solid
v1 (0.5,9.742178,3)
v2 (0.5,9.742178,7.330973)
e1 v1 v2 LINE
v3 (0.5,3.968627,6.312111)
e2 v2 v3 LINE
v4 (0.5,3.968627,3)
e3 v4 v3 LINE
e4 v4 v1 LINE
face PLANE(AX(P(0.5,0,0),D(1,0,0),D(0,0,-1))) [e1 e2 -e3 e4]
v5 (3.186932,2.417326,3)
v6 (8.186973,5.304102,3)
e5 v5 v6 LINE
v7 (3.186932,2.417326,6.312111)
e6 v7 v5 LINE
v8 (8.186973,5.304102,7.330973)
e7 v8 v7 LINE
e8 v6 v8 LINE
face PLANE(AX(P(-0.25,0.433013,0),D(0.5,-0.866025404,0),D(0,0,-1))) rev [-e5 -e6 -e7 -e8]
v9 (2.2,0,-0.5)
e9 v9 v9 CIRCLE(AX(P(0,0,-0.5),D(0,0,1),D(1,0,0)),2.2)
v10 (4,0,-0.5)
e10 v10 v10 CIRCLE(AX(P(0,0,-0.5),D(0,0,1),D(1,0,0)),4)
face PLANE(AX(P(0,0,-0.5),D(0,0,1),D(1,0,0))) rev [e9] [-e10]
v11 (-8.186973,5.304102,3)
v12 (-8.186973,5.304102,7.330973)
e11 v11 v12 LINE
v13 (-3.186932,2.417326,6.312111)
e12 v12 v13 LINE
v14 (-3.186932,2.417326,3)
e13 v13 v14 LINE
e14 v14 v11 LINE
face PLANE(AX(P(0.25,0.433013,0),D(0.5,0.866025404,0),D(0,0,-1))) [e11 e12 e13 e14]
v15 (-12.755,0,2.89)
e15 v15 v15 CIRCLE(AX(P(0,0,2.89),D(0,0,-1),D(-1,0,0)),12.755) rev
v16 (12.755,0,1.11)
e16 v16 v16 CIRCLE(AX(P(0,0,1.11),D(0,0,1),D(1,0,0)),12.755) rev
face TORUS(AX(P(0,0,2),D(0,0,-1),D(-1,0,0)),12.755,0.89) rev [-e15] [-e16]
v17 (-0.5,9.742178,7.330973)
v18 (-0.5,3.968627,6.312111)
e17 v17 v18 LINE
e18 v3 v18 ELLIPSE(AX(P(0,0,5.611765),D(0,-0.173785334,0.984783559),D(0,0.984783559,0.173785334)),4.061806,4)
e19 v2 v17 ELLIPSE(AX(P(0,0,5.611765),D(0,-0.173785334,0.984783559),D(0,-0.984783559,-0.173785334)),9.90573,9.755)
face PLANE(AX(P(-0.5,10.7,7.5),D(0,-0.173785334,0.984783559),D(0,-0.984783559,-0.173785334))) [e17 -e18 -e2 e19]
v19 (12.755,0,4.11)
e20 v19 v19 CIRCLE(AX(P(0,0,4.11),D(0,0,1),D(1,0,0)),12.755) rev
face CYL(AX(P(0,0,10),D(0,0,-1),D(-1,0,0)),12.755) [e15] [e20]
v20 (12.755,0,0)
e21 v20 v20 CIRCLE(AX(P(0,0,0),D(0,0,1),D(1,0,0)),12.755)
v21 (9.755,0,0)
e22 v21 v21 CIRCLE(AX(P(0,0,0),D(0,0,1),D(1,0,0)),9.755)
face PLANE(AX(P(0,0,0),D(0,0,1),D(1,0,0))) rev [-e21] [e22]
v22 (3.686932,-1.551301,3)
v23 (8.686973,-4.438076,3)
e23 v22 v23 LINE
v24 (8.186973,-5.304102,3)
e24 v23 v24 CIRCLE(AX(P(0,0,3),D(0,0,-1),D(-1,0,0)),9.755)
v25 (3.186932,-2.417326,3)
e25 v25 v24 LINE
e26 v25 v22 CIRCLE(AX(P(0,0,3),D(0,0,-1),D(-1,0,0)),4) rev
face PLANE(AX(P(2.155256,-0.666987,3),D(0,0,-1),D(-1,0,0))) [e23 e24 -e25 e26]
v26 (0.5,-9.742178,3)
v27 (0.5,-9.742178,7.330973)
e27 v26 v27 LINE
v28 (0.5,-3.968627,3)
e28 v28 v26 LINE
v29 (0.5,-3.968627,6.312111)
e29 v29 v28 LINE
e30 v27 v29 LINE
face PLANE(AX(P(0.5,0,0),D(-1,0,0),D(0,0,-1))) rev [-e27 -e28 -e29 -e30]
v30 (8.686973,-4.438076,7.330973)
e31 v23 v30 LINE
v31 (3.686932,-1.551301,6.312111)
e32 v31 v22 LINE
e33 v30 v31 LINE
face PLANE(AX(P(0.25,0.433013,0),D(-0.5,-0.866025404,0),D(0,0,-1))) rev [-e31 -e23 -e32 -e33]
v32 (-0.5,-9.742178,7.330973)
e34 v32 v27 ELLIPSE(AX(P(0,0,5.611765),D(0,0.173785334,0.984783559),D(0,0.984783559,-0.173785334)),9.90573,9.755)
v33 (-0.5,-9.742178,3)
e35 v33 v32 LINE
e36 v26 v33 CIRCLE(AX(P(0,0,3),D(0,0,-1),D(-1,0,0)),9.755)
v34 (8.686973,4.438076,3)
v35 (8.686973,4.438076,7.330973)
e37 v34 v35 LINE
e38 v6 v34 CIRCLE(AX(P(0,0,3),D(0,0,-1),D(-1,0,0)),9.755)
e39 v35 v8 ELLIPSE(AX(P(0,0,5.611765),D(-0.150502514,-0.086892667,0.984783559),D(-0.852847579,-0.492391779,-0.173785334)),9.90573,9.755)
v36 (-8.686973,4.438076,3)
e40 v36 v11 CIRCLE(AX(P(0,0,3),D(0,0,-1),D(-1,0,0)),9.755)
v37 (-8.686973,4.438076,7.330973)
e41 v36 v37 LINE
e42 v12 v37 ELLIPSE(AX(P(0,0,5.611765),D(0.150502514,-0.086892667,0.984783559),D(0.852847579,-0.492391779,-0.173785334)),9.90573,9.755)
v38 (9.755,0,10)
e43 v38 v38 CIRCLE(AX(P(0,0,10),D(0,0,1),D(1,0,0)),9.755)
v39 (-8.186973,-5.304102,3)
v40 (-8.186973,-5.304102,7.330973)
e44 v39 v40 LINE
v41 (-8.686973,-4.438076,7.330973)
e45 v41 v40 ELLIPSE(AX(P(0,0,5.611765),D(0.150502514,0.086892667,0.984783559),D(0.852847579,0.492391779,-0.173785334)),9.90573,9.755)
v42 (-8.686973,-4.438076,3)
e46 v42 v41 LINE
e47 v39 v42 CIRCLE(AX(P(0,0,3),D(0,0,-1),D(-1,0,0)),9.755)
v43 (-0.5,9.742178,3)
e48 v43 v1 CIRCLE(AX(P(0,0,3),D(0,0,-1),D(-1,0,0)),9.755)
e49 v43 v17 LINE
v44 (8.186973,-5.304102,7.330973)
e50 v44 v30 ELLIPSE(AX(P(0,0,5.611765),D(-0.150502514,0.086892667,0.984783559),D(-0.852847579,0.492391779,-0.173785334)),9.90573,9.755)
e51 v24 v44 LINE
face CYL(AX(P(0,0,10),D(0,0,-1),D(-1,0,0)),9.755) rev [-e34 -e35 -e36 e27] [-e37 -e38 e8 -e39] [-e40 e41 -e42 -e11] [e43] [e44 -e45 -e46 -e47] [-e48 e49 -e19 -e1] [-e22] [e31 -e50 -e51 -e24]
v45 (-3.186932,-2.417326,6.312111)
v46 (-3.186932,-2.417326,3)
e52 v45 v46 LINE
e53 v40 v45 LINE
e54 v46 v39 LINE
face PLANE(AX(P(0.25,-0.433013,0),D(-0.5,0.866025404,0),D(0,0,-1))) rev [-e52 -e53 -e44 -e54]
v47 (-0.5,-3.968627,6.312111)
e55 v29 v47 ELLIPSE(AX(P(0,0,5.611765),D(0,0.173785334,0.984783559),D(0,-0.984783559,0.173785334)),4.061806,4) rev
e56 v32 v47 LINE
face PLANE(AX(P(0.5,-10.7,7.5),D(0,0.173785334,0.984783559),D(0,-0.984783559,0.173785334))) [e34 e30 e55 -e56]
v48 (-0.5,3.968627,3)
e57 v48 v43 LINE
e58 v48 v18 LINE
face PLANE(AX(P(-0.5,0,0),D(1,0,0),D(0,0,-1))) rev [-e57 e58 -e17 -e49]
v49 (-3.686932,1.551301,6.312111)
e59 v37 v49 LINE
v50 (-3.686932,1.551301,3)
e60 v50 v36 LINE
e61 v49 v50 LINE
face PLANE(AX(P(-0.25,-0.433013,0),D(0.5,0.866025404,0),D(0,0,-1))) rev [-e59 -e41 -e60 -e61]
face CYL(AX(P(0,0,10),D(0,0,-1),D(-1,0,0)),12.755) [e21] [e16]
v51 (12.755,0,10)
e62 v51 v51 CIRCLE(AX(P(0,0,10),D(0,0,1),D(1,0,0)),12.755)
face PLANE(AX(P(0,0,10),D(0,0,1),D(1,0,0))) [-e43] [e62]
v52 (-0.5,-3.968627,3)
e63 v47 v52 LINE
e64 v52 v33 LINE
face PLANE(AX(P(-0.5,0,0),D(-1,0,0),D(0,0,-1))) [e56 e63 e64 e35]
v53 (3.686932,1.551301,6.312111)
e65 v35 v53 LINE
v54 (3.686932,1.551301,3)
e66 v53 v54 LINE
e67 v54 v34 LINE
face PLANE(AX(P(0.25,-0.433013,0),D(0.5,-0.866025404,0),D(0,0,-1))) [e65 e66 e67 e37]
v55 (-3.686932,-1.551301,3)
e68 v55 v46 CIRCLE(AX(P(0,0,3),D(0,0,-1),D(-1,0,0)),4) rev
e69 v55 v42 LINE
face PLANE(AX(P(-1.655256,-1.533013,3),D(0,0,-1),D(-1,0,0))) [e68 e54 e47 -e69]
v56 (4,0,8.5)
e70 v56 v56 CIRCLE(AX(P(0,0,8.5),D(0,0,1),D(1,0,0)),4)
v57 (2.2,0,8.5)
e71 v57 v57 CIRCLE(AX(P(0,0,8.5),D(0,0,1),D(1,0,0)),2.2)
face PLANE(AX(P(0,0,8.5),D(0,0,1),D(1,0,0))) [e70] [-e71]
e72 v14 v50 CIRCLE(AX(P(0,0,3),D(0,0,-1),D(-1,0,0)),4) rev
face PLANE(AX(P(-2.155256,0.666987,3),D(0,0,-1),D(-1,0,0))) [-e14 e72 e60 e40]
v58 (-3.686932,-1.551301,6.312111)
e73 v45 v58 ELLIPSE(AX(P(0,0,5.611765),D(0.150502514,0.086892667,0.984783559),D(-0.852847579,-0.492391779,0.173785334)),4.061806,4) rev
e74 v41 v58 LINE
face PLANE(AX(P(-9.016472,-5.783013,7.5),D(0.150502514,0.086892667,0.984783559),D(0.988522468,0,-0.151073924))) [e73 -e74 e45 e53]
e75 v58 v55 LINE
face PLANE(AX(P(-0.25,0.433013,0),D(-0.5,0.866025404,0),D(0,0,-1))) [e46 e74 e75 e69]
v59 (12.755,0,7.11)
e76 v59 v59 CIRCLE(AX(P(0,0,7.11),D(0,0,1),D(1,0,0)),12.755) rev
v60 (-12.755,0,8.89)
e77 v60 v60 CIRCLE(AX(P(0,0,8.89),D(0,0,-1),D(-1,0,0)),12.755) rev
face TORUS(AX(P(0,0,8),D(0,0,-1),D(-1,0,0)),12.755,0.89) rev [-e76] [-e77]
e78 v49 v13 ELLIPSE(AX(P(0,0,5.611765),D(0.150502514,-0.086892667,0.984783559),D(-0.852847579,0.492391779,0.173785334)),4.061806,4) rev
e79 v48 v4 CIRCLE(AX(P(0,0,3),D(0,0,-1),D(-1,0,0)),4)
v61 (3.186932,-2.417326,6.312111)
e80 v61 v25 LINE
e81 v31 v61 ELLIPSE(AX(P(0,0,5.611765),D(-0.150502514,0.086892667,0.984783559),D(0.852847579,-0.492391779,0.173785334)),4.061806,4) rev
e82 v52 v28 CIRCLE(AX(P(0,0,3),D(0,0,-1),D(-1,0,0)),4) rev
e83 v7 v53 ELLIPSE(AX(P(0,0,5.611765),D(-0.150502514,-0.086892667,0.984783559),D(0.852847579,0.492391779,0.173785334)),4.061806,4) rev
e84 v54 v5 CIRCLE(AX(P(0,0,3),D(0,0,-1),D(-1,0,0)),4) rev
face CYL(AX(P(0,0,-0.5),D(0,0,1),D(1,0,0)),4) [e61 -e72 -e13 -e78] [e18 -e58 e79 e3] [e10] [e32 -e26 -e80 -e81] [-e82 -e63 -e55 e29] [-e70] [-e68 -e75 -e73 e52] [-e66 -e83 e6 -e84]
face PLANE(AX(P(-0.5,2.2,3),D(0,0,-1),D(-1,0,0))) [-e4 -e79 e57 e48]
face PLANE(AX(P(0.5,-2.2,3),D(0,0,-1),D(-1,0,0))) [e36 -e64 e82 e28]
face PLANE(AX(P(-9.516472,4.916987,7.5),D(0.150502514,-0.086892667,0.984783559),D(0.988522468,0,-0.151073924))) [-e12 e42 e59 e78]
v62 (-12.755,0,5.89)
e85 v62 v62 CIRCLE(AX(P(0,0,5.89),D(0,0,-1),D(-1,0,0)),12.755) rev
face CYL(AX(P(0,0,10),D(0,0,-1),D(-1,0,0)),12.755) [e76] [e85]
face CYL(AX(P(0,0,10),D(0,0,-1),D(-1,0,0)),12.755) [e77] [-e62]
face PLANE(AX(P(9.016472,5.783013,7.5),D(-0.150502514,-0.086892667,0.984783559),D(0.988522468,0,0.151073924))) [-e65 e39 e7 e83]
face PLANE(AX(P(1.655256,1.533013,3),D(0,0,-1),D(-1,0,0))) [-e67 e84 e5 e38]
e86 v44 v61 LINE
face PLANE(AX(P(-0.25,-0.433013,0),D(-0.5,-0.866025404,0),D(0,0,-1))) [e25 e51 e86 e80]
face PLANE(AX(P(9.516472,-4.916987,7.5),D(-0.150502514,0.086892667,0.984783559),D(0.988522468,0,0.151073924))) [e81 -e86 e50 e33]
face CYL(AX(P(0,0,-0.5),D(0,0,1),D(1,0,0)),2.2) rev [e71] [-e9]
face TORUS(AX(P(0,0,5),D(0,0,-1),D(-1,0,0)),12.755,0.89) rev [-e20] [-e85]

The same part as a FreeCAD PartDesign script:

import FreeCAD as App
import Part
import Sketcher
from FreeCAD import Vector
Q = App.Units.Quantity


def add_polygon(sketch, points):
    """Adds a closed chain of lines whose ends are joined by coincident constraints."""
    first, n = sketch.GeometryCount, len(points)
    for a, b in zip(points, points[1:] + points[:1]):
        sketch.addGeometry(Part.LineSegment(App.Vector(*a, 0), App.Vector(*b, 0)), False)
    for i in range(n):
        sketch.addConstraint(Sketcher.Constraint("Coincident", first + i, 2, first + (i + 1) % n, 1))

doc = App.newDocument("Part")
params = doc.addObject("Spreadsheet::Sheet", "Params")
for row, (alias, value) in enumerate([
    ("sketch1_diameter", "25.51 mm"),
    ("sketch1_diameter2", "19.51 mm"),
    ("pad1_length", "10 mm"),
    ("sketch2_diameter", "8 mm"),
    ("sketch2_diameter2", "4.4 mm"),
    ("pad2_length", "8.5 mm"),
    ("pad2_length2", "0.5 mm"),
    ("sketch3_height", "3 mm"),
    ("sketch3_width", "8.5 mm"),
    ("sketch3_height2", "4.5 mm"),
    ("pad3_length", "1 mm"),
    ("sketch4_diameter", "1.78 mm"),
    ("groove_angle", "360 deg"),
], start=1):
    params.set(f"A{row}", alias)
    params.set(f"B{row}", "=" + value)
    params.setAlias(f"B{row}", alias)

body = doc.addObject("PartDesign::Body", "Body")

# Sketch on XY plane
sketch1 = doc.addObject("Sketcher::SketchObject", "Sketch")
body.addObject(sketch1)
sketch1.AttachmentSupport = (doc.XY_Plane, [""])
sketch1.MapMode = "FlatFace"
sketch1.addGeometry([
    Part.Circle(Vector(0, 0, 0), Vector(0, 0, 1), 13),
    Part.Circle(Vector(0, 0, 0), Vector(0, 0, 1), 10),
], False)
sketch1.addConstraint([
    Sketcher.Constraint("Coincident", 0, 3, -1, 1),
    Sketcher.Constraint("Coincident", 1, 3, -1, 1),
    Sketcher.Constraint("Diameter", 0, Q("25.51 mm")),
    Sketcher.Constraint("Diameter", 1, Q("19.51 mm")),
])
sketch1.setExpression("Constraints[2]", "Params.sketch1_diameter")
sketch1.setExpression("Constraints[3]", "Params.sketch1_diameter2")
pad1 = doc.addObject("PartDesign::Pad", "Pad")
body.addObject(pad1)
pad1.Profile = sketch1
pad1.setExpression("Length", "Params.pad1_length")
body2 = doc.addObject("PartDesign::Body", "Body001")

# Sketch on XY plane
sketch2 = doc.addObject("Sketcher::SketchObject", "Sketch001")
body2.addObject(sketch2)
sketch2.AttachmentSupport = (doc.getObject("XY_Plane001"), [""])
sketch2.MapMode = "FlatFace"
sketch2.addGeometry([
    Part.Circle(Vector(0, 0, 0), Vector(0, 0, 1), 4),
    Part.Circle(Vector(0, 0, 0), Vector(0, 0, 1), 2.2),
], False)
sketch2.addConstraint([
    Sketcher.Constraint("Coincident", 0, 3, -1, 1),
    Sketcher.Constraint("Coincident", 1, 3, -1, 1),
    Sketcher.Constraint("Diameter", 0, Q("8 mm")),
    Sketcher.Constraint("Diameter", 1, Q("4.4 mm")),
])
sketch2.setExpression("Constraints[2]", "Params.sketch2_diameter")
sketch2.setExpression("Constraints[3]", "Params.sketch2_diameter2")
pad2 = doc.addObject("PartDesign::Pad", "Pad001")
body2.addObject(pad2)
pad2.Profile = sketch2
pad2.Type = "TwoLengths"
pad2.setExpression("Length", "Params.pad2_length")
pad2.setExpression("Length2", "Params.pad2_length2")
body.AllowCompound = True
doc.recompute()

boolean = doc.addObject("PartDesign::Boolean", "Boolean")
body.addObject(boolean)
boolean.Type = "Fuse"
boolean.addObjects([body2])

# Sketch on YZ plane
sketch3 = doc.addObject("Sketcher::SketchObject", "Sketch002")
body.addObject(sketch3)
sketch3.AttachmentSupport = (doc.YZ_Plane, [""])
sketch3.MapMode = "FlatFace"
add_polygon(sketch3, [(2.2, 3), (10.7, 3), (10.7, 7.5), (2.2, 6)])  # lines 0-3
sketch3.addConstraint([
    Sketcher.Constraint("Horizontal", 0),
    Sketcher.Constraint("Vertical", 1),
    Sketcher.Constraint("Vertical", 3),
    Sketcher.Constraint("DistanceY", 3, 2, 3, 1, Q("3 mm")),
    Sketcher.Constraint("DistanceX", 0, 1, 0, 2, Q("8.5 mm")),
    Sketcher.Constraint("DistanceY", 1, 1, 1, 2, Q("4.5 mm")),
    Sketcher.Constraint("DistanceY", -1, 1, 0, 2, Q("3 mm")),
    Sketcher.Constraint("DistanceX", -1, 1, 0, 2, Q("10.7 mm")),
])
sketch3.setExpression("Constraints[7]", "Params.sketch3_height")
sketch3.setExpression("Constraints[8]", "Params.sketch3_width")
sketch3.setExpression("Constraints[9]", "Params.sketch3_height2")
pad3 = doc.addObject("PartDesign::Pad", "Pad002")
body.addObject(pad3)
pad3.Profile = sketch3
pad3.setExpression("Length", "Params.pad3_length")
pad3.Midplane = True
doc.recompute()

polarpattern = doc.addObject("PartDesign::PolarPattern", "PolarPattern")
body.addObject(polarpattern)
polarpattern.Originals = [pad3]
polarpattern.Axis = (doc.Z_Axis, [""])
polarpattern.Angle = 360
polarpattern.Occurrences = 6
body.Tip = polarpattern

# Sketch on YZ plane
sketch4 = doc.addObject("Sketcher::SketchObject", "Sketch003")
body.addObject(sketch4)
sketch4.AttachmentSupport = (doc.YZ_Plane, [""])
sketch4.MapMode = "FlatFace"
sketch4.addGeometry([
    Part.Circle(Vector(12.8, 5, 0), Vector(0, 0, 1), 0.9),
    Part.Circle(Vector(12.8, 2, 0), Vector(0, 0, 1), 0.9),
    Part.Circle(Vector(12.8, 8, 0), Vector(0, 0, 1), 0.9),
], False)
sketch4.addConstraint([
    Sketcher.Constraint("Equal", 0, 1),
    Sketcher.Constraint("Equal", 1, 2),
    Sketcher.Constraint("Vertical", 0, 3, 1, 3),
    Sketcher.Constraint("Vertical", 1, 3, 2, 3),
    Sketcher.Constraint("Diameter", 0, Q("1.78 mm")),
    Sketcher.Constraint("DistanceY", -1, 1, 0, 3, Q("5 mm")),
    Sketcher.Constraint("DistanceY", -1, 1, 1, 3, Q("2 mm")),
    Sketcher.Constraint("DistanceY", -1, 1, 2, 3, Q("8 mm")),
    Sketcher.Constraint("DistanceX", -1, 1, 0, 3, Q("12.755 mm")),
])
sketch4.setExpression("Constraints[4]", "Params.sketch4_diameter")
groove = doc.addObject("PartDesign::Groove", "Groove")
body.addObject(groove)
groove.Profile = sketch4
groove.ReferenceAxis = (sketch4, ["V_Axis"])
groove.setExpression("Angle", "Params.groove_angle")

doc.recompute()
